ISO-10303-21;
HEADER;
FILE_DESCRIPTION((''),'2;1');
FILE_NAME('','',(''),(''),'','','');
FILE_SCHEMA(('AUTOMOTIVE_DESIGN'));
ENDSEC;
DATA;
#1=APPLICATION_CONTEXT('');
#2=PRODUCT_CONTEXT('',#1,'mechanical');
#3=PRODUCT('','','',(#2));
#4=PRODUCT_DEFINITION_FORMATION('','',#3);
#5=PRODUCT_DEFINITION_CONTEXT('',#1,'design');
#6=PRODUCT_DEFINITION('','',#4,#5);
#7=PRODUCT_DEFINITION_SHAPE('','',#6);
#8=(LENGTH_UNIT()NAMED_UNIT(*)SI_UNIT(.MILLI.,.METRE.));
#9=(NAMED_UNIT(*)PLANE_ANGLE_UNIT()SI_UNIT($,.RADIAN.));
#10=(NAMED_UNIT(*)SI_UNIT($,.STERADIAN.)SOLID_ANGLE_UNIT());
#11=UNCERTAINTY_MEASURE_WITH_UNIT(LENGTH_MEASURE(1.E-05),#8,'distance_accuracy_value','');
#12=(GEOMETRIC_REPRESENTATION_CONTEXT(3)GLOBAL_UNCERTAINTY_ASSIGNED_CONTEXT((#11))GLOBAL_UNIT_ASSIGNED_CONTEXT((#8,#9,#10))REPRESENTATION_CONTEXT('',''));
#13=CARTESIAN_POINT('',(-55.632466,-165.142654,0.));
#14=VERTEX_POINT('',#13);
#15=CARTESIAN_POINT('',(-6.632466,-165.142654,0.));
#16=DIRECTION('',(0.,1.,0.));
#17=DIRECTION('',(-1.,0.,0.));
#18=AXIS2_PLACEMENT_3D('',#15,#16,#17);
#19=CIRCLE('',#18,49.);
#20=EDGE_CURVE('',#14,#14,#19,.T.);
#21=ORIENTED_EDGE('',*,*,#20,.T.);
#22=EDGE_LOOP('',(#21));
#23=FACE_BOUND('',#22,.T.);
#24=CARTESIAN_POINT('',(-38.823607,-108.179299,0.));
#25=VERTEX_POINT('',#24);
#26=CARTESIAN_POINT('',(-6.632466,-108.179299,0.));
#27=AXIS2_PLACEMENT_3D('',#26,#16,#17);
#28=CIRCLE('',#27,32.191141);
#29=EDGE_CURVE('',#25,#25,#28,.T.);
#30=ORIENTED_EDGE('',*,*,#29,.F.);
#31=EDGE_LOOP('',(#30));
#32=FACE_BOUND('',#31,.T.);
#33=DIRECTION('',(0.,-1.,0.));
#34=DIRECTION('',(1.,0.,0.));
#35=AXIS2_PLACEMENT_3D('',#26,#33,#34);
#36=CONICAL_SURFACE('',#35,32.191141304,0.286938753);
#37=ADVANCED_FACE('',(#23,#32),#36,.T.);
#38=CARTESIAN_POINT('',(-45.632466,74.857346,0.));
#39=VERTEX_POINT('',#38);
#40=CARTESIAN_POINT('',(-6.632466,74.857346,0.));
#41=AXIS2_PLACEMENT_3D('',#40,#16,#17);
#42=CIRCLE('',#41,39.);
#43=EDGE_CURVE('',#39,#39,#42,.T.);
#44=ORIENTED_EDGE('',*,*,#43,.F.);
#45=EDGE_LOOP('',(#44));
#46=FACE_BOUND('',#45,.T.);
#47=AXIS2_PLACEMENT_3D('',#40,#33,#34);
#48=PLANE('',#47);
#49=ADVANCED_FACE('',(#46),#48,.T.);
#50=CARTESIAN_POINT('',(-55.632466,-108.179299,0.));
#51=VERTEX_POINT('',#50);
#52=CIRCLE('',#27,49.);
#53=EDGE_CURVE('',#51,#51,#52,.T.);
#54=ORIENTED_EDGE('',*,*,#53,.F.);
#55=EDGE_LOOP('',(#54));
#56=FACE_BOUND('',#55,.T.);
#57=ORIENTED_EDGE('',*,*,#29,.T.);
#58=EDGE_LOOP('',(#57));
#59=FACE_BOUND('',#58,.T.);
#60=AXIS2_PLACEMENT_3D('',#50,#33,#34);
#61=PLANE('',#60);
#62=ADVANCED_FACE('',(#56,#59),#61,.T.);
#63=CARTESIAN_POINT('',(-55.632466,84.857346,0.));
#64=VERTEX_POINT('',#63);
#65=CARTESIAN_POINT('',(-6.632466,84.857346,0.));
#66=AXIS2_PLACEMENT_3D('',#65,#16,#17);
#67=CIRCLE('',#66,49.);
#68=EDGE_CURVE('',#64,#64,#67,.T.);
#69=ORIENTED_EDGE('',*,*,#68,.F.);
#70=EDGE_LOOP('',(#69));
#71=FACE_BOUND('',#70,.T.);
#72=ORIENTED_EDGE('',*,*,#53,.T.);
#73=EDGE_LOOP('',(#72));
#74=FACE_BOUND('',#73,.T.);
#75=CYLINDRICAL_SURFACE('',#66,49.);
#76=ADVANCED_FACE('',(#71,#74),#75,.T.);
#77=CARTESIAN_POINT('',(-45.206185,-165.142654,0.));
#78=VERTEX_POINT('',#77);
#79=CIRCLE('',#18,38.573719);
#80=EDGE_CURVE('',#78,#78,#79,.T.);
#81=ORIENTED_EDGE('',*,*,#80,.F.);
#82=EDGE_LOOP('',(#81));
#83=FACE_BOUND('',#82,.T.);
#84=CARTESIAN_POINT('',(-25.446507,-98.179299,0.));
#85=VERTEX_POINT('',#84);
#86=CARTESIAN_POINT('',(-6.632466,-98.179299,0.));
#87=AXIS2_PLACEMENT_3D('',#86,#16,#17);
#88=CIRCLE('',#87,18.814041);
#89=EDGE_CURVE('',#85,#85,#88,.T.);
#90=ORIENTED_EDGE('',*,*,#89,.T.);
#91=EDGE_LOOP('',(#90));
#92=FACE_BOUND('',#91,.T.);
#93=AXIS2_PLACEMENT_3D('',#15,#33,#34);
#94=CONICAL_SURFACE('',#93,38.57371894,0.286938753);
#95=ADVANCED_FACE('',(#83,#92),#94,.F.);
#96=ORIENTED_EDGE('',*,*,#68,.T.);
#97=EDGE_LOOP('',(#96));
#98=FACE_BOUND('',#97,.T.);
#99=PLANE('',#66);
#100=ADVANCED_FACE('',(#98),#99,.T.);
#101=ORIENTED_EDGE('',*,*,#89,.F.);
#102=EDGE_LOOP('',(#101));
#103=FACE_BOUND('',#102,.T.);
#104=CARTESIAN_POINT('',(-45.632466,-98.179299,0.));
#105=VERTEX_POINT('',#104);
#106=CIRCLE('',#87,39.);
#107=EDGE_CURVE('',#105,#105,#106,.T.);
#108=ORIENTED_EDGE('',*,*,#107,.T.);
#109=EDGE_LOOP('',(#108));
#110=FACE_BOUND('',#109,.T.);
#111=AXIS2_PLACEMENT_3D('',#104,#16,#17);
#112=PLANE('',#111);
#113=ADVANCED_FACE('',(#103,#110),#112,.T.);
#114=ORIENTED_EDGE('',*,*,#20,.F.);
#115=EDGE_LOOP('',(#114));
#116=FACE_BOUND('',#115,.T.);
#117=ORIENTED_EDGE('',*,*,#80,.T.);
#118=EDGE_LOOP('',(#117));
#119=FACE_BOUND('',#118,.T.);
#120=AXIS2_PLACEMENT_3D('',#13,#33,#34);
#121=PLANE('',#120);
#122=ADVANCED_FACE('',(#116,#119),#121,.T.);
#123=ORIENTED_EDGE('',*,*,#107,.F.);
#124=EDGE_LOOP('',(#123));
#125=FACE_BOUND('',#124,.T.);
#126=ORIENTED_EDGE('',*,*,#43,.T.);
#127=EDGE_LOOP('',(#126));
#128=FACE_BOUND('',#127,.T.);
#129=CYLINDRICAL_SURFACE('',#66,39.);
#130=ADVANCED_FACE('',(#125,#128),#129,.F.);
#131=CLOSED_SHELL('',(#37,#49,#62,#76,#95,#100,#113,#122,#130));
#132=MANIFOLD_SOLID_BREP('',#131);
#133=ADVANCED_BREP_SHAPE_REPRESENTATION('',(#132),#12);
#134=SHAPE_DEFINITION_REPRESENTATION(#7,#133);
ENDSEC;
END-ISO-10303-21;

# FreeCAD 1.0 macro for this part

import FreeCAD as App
import Part
import Sketcher


def add_polygon(sketch, points):
    """Adds a closed chain of lines whose ends are joined by coincident constraints."""
    first, n = sketch.GeometryCount, len(points)
    for a, b in zip(points, points[1:] + points[:1]):
        sketch.addGeometry(Part.LineSegment(App.Vector(*a, 0), App.Vector(*b, 0)), False)
    for i in range(n):
        sketch.addConstraint(Sketcher.Constraint("Coincident", first + i, 2, first + (i + 1) % n, 1))

doc = App.newDocument("Part")
params = doc.addObject("Spreadsheet::Sheet", "Params")
for row, (alias, value) in enumerate([
    ("sketch1_width", "39 mm"),
    ("sketch1_width2", "49 mm"),
    ("sketch1_height", "10 mm"),
    ("sketch1_height2", "250 mm"),
    ("revolution_angle", "360 deg"),
], start=1):
    params.set(f"A{row}", alias)
    params.set(f"B{row}", "=" + value)
    params.setAlias(f"B{row}", alias)

body = doc.addObject("PartDesign::Body", "Body")

sketch1 = body.newObject("Sketcher::SketchObject", "Sketch")
sketch1.AttachmentSupport = (doc.getObject("XY_Plane"), [""])
sketch1.MapMode = "FlatFace"
add_polygon(sketch1, [(-45.632466, 74.857346), (-6.632466, 74.857346), (-6.632466, 84.857346), (-55.632466, 84.857346), (-55.632466, -108.179299), (-38.823607, -108.179299), (-55.632466, -165.142654), (-45.206185, -165.142654), (-42.255365, -155.142654), (-25.446507, -98.179299), (-45.632466, -98.179299)])
sketch1.addGeometry(Part.LineSegment(App.Vector(-6.632466, 84.857346, 0), App.Vector(-6.632466, -165.142654, 0)), True)
sketch1.addConstraint(Sketcher.Constraint("Horizontal", 0))
sketch1.addConstraint(Sketcher.Constraint("Vertical", 1))
sketch1.addConstraint(Sketcher.Constraint("Horizontal", 2))
sketch1.addConstraint(Sketcher.Constraint("Vertical", 3))
sketch1.addConstraint(Sketcher.Constraint("Horizontal", 4))
sketch1.addConstraint(Sketcher.Constraint("Horizontal", 6))
sketch1.addConstraint(Sketcher.Constraint("Horizontal", 9))
sketch1.addConstraint(Sketcher.Constraint("Vertical", 10))
sketch1.addConstraint(Sketcher.Constraint("Vertical", 11))
sketch1.addConstraint(Sketcher.Constraint("Coincident", 11, 1, 1, 2))
sketch1.addConstraint(Sketcher.Constraint("Parallel", 5, 7))
sketch1.addConstraint(Sketcher.Constraint("Parallel", 7, 8))
sketch1.addConstraint(Sketcher.Constraint("Horizontal", 6, 2, 11, 2))
sketch1.addConstraint(Sketcher.Constraint("Vertical", 3, 2, 5, 2))
sketch1.addConstraint(Sketcher.Constraint("Equal", 5, 8))
sketch1.addConstraint(Sketcher.Constraint("DistanceX", 0, 1, 0, 2, 39.0))
sketch1.addConstraint(Sketcher.Constraint("DistanceX", 2, 2, 2, 1, 49.0))
sketch1.addConstraint(Sketcher.Constraint("DistanceY", 1, 1, 1, 2, 10.0))
sketch1.addConstraint(Sketcher.Constraint("DistanceY", 11, 2, 11, 1, 250.0))
sketch1.addConstraint(Sketcher.Constraint("DistanceY", 6, 2, 7, 2, 10.0))
sketch1.addConstraint(Sketcher.Constraint("DistanceX", 4, 1, 4, 2, 16.808859))
sketch1.addConstraint(Sketcher.Constraint("DistanceX", 6, 1, 6, 2, 10.426281))
sketch1.addConstraint(Sketcher.Constraint("DistanceX", 9, 2, 9, 1, 20.185959))
sketch1.addConstraint(Sketcher.Constraint("DistanceY", 3, 2, -1, 1, 108.179299))
sketch1.addConstraint(Sketcher.Constraint("DistanceX", 0, 2, -1, 1, 6.632466))
sketch1.setExpression("Constraints[26]", "Params.sketch1_width")
sketch1.setExpression("Constraints[27]", "Params.sketch1_width2")
sketch1.setExpression("Constraints[28]", "Params.sketch1_height")
sketch1.setExpression("Constraints[29]", "Params.sketch1_height2")
revolution = body.newObject("PartDesign::Revolution", "Revolution")
revolution.Profile = sketch1
revolution.ReferenceAxis = (sketch1, ["Axis0"])
revolution.setExpression("Angle", "Params.revolution_angle")

doc.recompute()
